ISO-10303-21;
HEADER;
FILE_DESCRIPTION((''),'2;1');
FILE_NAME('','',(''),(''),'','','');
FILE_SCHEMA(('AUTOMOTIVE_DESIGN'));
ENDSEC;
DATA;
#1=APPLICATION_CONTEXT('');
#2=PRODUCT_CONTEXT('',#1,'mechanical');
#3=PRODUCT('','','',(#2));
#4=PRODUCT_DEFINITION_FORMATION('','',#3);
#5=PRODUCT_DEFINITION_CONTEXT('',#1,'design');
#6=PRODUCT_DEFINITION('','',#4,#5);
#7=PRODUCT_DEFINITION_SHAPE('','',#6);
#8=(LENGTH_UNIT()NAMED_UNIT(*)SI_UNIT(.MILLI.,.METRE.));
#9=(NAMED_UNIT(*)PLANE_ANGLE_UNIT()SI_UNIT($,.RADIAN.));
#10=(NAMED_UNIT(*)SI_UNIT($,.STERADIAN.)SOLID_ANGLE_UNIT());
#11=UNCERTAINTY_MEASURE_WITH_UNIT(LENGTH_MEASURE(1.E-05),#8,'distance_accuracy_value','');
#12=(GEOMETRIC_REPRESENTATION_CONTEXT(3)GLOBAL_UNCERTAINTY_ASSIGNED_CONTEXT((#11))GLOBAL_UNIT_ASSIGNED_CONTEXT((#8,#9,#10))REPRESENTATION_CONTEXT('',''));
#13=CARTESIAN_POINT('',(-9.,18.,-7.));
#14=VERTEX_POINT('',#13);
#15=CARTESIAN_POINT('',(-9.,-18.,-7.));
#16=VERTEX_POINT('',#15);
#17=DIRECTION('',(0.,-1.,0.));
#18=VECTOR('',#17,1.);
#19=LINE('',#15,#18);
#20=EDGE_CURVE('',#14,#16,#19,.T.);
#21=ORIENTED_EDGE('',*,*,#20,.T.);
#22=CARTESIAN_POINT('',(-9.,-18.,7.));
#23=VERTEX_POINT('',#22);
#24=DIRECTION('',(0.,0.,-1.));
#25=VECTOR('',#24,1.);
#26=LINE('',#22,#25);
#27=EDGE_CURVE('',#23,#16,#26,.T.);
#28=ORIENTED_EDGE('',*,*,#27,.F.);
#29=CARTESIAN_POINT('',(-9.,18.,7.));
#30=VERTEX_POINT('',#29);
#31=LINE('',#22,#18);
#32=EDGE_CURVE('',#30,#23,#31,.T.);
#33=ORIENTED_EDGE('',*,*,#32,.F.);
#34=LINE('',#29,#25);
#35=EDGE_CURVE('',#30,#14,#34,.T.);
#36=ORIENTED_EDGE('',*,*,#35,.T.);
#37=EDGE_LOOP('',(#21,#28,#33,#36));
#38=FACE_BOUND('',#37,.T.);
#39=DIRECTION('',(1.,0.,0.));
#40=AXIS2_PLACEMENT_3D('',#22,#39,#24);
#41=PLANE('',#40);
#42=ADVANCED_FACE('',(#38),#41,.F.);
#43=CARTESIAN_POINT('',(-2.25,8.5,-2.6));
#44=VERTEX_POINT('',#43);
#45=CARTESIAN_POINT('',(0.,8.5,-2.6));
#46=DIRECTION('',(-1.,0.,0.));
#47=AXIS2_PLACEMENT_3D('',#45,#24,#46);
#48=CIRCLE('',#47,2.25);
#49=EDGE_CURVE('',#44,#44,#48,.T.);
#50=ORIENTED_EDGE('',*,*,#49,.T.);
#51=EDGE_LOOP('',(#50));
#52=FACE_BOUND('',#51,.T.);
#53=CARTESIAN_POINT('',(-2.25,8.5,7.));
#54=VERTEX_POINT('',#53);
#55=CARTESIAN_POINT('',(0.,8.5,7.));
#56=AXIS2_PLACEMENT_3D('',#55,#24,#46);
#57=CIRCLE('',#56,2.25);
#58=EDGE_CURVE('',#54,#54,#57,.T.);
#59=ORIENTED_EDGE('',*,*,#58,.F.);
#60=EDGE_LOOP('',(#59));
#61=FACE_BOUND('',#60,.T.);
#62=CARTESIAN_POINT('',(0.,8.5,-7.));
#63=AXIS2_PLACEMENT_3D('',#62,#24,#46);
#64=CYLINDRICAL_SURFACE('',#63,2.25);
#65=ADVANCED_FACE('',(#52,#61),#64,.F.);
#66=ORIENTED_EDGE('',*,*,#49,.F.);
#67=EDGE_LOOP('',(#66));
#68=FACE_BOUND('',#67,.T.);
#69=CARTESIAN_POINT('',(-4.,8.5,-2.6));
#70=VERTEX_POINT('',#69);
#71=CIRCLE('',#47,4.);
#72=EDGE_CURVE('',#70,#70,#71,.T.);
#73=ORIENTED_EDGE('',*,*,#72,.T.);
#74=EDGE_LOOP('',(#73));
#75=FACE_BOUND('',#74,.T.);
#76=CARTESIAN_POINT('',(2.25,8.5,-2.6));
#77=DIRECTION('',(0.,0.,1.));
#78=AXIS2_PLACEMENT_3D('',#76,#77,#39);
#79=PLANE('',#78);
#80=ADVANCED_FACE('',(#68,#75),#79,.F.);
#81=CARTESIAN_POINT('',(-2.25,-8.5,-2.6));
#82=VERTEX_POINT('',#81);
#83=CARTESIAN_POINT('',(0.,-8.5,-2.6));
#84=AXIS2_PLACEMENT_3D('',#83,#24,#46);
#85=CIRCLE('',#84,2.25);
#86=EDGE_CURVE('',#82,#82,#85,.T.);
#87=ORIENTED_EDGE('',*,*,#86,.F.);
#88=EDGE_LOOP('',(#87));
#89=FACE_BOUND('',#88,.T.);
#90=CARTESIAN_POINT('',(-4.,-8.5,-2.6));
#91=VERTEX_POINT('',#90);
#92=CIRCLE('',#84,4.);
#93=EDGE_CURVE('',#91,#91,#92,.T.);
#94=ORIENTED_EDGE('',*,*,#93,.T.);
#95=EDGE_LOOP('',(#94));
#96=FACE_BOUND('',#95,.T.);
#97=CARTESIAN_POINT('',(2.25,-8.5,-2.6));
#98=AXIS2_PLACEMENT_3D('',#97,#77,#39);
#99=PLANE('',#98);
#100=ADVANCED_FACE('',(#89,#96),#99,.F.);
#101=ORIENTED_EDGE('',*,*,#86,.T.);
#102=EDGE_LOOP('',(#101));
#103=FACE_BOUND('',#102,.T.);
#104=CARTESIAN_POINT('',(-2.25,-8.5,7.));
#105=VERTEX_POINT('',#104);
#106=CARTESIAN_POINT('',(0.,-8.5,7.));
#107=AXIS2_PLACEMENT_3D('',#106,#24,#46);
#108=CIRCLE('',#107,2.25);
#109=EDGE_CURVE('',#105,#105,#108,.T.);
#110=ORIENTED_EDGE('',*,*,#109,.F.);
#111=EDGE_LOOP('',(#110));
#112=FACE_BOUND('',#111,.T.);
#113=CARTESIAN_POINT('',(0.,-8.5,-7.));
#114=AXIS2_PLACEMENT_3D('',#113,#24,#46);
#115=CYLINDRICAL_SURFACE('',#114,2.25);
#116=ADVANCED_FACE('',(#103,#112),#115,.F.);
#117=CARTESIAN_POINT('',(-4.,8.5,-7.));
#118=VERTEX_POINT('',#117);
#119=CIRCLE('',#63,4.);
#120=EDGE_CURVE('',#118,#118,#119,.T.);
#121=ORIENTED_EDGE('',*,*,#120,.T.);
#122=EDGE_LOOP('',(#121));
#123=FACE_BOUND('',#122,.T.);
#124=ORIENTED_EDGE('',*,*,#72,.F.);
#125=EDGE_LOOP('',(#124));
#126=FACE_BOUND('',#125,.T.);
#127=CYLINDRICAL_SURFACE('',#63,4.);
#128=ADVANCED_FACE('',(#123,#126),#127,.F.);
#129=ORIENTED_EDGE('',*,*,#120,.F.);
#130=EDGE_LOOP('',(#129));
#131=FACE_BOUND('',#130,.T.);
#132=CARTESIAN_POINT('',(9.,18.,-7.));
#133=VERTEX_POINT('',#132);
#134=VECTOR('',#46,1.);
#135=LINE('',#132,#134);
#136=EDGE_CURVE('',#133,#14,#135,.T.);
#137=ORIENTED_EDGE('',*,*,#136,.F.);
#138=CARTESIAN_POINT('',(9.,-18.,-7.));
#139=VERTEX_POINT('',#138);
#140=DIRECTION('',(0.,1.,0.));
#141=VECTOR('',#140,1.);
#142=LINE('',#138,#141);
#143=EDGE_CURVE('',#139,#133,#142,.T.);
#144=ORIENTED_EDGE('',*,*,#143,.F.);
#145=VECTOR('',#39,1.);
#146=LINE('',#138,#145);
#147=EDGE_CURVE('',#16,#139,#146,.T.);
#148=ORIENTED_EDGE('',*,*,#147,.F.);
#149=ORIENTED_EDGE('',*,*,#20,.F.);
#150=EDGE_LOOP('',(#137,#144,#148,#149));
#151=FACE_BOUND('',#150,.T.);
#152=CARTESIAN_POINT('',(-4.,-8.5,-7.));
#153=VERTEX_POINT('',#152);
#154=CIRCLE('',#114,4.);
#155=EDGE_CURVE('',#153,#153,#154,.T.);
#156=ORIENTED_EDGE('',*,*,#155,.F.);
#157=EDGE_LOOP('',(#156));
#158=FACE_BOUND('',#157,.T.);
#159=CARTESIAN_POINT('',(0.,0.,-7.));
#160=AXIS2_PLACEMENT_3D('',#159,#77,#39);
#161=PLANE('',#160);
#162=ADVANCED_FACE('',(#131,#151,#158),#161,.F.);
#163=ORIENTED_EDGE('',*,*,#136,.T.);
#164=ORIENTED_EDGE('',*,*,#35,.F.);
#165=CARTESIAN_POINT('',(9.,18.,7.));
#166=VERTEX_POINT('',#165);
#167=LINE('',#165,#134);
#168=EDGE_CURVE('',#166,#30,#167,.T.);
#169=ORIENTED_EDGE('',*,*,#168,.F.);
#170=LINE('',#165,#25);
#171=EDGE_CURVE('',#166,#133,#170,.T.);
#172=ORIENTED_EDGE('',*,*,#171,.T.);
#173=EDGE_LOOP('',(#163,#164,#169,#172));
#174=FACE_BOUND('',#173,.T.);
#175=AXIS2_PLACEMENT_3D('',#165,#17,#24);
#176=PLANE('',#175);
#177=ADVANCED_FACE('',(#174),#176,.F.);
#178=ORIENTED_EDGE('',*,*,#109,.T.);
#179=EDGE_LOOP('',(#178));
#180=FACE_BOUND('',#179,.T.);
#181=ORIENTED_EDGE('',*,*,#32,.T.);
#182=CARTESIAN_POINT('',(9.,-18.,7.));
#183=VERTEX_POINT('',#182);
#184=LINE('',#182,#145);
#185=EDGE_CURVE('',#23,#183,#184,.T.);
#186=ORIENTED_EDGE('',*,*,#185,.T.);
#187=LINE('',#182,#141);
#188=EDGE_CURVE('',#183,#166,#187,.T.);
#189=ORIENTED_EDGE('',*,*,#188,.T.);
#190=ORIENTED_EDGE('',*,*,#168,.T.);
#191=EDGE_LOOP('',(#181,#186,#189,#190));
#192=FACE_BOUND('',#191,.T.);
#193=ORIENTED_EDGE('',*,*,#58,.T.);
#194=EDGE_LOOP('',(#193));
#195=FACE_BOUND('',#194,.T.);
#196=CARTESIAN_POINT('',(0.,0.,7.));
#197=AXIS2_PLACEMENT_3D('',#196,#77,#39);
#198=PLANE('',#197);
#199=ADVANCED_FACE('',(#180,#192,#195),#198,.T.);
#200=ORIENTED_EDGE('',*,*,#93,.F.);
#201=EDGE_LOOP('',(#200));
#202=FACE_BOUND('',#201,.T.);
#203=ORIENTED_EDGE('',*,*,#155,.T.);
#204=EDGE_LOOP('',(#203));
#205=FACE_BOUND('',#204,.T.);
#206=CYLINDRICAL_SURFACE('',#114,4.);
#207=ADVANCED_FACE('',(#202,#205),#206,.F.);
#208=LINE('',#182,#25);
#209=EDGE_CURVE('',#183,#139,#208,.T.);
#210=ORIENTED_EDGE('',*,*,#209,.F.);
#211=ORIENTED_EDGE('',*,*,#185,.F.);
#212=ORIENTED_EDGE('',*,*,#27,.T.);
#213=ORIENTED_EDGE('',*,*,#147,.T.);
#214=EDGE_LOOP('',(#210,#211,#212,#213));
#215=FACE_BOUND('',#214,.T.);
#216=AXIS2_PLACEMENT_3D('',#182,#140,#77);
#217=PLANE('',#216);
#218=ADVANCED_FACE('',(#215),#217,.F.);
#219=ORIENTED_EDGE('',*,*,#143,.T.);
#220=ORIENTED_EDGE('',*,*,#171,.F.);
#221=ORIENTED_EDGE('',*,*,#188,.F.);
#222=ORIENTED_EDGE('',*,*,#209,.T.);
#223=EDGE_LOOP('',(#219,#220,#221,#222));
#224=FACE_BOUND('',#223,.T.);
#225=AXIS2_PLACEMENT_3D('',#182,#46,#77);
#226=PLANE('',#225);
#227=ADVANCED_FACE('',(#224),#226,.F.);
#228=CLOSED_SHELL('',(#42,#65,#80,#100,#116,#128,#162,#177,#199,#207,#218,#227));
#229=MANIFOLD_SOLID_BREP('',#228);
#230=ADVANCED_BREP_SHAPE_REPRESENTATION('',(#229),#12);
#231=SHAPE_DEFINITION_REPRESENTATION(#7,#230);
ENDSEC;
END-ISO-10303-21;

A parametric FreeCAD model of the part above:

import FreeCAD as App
import Part
import Sketcher


def add_polygon(sketch, points):
    """Adds a closed chain of lines whose ends are joined by coincident constraints."""
    first, n = sketch.GeometryCount, len(points)
    for a, b in zip(points, points[1:] + points[:1]):
        sketch.addGeometry(Part.LineSegment(App.Vector(*a, 0), App.Vector(*b, 0)), False)
    for i in range(n):
        sketch.addConstraint(Sketcher.Constraint("Coincident", first + i, 2, first + (i + 1) % n, 1))

doc = App.newDocument("Part")
body = doc.addObject("PartDesign::Body", "Body")

# Sketch on XY plane
sketch1 = body.newObject("Sketcher::SketchObject", "Sketch")
sketch1.AttachmentSupport = (doc.getObject("XY_Plane"), [""])
sketch1.MapMode = "FlatFace"
add_polygon(sketch1, [(-9, 18), (-9, -18), (9, -18), (9, 18)])  # lines 0-3
sketch1.addConstraint(Sketcher.Constraint("Vertical", 0))
sketch1.addConstraint(Sketcher.Constraint("Horizontal", 1))
sketch1.addConstraint(Sketcher.Constraint("Vertical", 2))
sketch1.addConstraint(Sketcher.Constraint("Horizontal", 3))
sketch1.addConstraint(Sketcher.Constraint("Symmetric", 0, 2, 2, 2, -1, 1))
sketch1.addConstraint(Sketcher.Constraint("DistanceX", 1, 1, 1, 2, 18.0))
sketch1.addConstraint(Sketcher.Constraint("DistanceY", 0, 2, 0, 1, 36.0))
pad1 = body.newObject("PartDesign::Pad", "Pad")
pad1.Profile = sketch1
pad1.Length = 14
pad1.Midplane = True

# Sketch on XY plane
sketch2 = body.newObject("Sketcher::SketchObject", "Sketch001")
sketch2.AttachmentSupport = (doc.getObject("XY_Plane"), [""])
sketch2.MapMode = "FlatFace"
sketch2.AttachmentOffset = App.Placement(App.Vector(0, 0, -7), App.Rotation())
sketch2.addGeometry(Part.Circle(App.Vector(0, 8.5, 0), App.Vector(0, 0, 1), 2.2), False)
sketch2.addGeometry(Part.Circle(App.Vector(0, -8.5, 0), App.Vector(0, 0, 1), 2.2), False)
sketch2.addConstraint(Sketcher.Constraint("Equal", 0, 1))
sketch2.addConstraint(Sketcher.Constraint("Symmetric", 0, 3, 1, 3, -1, 1))
sketch2.addConstraint(Sketcher.Constraint("PointOnObject", 0, 3, -2))
sketch2.addConstraint(Sketcher.Constraint("Diameter", 0, 4.5))
sketch2.addConstraint(Sketcher.Constraint("DistanceY", 1, 3, 0, 3, 17.0))
doc.recompute()
hole = body.newObject("PartDesign::Hole", "Hole")
hole.Profile = sketch2
hole.ThreadType = "None"
hole.Diameter = 4.5
hole.DepthType = "ThroughAll"
hole.HoleCutType = "Counterbore"
hole.HoleCutDiameter = 8
hole.HoleCutDepth = 4.4
hole.Reversed = True

doc.recompute()
